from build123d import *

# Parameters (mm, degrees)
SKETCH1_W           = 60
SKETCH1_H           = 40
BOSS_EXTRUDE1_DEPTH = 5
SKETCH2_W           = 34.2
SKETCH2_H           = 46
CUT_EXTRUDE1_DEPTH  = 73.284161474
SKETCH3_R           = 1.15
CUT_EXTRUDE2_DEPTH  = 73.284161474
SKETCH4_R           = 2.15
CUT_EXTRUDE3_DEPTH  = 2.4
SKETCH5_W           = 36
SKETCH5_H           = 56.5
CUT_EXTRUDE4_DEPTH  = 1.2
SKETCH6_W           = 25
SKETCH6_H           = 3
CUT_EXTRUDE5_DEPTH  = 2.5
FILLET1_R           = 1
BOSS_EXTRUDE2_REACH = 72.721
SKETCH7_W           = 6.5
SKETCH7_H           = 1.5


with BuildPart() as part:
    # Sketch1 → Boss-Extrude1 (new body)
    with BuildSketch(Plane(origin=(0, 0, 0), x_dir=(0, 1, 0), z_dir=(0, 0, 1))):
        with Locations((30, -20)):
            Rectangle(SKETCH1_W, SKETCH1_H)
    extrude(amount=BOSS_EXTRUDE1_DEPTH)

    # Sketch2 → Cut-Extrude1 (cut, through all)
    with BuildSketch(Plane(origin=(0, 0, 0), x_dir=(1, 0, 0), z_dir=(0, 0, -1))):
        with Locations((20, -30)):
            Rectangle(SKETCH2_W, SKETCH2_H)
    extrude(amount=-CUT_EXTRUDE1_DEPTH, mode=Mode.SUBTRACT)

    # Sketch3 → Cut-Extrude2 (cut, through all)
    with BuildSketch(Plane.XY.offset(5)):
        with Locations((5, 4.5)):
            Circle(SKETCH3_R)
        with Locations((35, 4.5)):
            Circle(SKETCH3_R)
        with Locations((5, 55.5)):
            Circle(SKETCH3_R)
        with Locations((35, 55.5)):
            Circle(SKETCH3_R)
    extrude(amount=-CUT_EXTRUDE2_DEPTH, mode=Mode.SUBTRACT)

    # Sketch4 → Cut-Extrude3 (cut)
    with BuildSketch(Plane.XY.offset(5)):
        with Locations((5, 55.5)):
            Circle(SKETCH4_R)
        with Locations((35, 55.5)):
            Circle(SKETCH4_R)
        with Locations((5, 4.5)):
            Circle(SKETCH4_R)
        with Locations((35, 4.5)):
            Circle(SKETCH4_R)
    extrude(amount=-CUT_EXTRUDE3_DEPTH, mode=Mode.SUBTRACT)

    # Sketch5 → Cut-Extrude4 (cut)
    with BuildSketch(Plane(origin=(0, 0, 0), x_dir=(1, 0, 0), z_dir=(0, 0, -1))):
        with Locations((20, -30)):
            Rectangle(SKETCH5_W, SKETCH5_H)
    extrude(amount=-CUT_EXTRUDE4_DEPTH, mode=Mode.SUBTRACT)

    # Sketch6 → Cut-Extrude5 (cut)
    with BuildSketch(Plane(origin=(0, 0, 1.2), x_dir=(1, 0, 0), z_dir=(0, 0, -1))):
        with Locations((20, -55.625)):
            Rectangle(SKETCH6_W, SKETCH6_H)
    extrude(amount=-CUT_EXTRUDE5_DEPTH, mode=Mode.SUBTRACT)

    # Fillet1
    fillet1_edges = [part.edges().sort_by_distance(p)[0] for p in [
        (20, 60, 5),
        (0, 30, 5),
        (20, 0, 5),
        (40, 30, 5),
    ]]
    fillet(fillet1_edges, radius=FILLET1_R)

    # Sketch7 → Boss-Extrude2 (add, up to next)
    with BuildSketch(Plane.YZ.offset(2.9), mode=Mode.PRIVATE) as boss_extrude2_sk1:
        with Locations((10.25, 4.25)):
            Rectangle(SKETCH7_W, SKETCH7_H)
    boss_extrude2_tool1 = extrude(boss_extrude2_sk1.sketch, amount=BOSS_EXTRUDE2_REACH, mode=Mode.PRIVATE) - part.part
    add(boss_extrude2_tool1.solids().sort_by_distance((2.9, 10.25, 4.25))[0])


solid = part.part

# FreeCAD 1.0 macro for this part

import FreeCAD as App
import Part
import Sketcher


def edges_at(feature, points):
    """Names of the edges that pass closest to the given points."""
    edges = feature.Shape.Edges
    near = lambda p: min(range(len(edges)), key=lambda i: edges[i].distToShape(Part.Vertex(*p))[0])
    return sorted({f"Edge{near(p) + 1}" for p in points})

doc = App.newDocument("Part")
body = doc.addObject("PartDesign::Body", "Body")

sketch1 = doc.addObject("Sketcher::SketchObject", "Sketch")
body.addObject(sketch1)
sketch1.AttachmentSupport = (doc.XY_Plane, [""])
sketch1.MapMode = "FlatFace"
sketch1.addGeometry([
    Part.LineSegment(App.Vector(0, 0, 0), App.Vector(40, 0, 0)),
    Part.LineSegment(App.Vector(40, 0, 0), App.Vector(40, 60, 0)),
    Part.LineSegment(App.Vector(40, 60, 0), App.Vector(0, 60, 0)),
    Part.LineSegment(App.Vector(0, 60, 0), App.Vector(0, 0, 0)),
], False)
sketch1.addConstraint([
    Sketcher.Constraint("Coincident", 0, 2, 1, 1),
    Sketcher.Constraint("Coincident", 1, 2, 2, 1),
    Sketcher.Constraint("Coincident", 2, 2, 3, 1),
    Sketcher.Constraint("Coincident", 3, 2, 0, 1),
    Sketcher.Constraint("Horizontal", 0),
    Sketcher.Constraint("Vertical", 1),
    Sketcher.Constraint("Horizontal", 2),
    Sketcher.Constraint("Vertical", 3),
    Sketcher.Constraint("Coincident", 3, 2, -1, 1),
    Sketcher.Constraint("DistanceX", 0, 1, 0, 2, 40.0),
    Sketcher.Constraint("DistanceY", 1, 1, 1, 2, 60.0),
])
pad1 = doc.addObject("PartDesign::Pad", "Pad")
body.addObject(pad1)
pad1.Profile = sketch1
pad1.Length = 5

sketch2 = doc.addObject("Sketcher::SketchObject", "Sketch001")
body.addObject(sketch2)
sketch2.AttachmentSupport = (doc.XY_Plane, [""])
sketch2.MapMode = "FlatFace"
sketch2.addGeometry([
    Part.LineSegment(App.Vector(3, 7, 0), App.Vector(3, 53, 0)),
    Part.LineSegment(App.Vector(3, 53, 0), App.Vector(37, 53, 0)),
    Part.LineSegment(App.Vector(37, 53, 0), App.Vector(37, 7, 0)),
    Part.LineSegment(App.Vector(37, 7, 0), App.Vector(3, 7, 0)),
], False)
sketch2.addConstraint([
    Sketcher.Constraint("Coincident", 0, 2, 1, 1),
    Sketcher.Constraint("Coincident", 1, 2, 2, 1),
    Sketcher.Constraint("Coincident", 2, 2, 3, 1),
    Sketcher.Constraint("Coincident", 3, 2, 0, 1),
    Sketcher.Constraint("Vertical", 0),
    Sketcher.Constraint("Horizontal", 1),
    Sketcher.Constraint("Vertical", 2),
    Sketcher.Constraint("Horizontal", 3),
    Sketcher.Constraint("DistanceY", 0, 1, 0, 2, 46.0),
    Sketcher.Constraint("DistanceX", 1, 1, 1, 2, 34.2),
    Sketcher.Constraint("DistanceY", -1, 1, 0, 2, 53.0),
    Sketcher.Constraint("DistanceX", -1, 1, 0, 2, 2.9),
])
pocket1 = doc.addObject("PartDesign::Pocket", "Pocket")
body.addObject(pocket1)
pocket1.Profile = sketch2
pocket1.Type = "ThroughAll"
pocket1.Reversed = True

sketch3 = doc.addObject("Sketcher::SketchObject", "Sketch002")
body.addObject(sketch3)
sketch3.AttachmentSupport = (doc.XY_Plane, [""])
sketch3.MapMode = "FlatFace"
sketch3.AttachmentOffset = App.Placement(App.Vector(0, 0, 5), App.Rotation())
sketch3.addGeometry([
    Part.Circle(App.Vector(5, 4.5, 0), App.Vector(0, 0, 1), 1.1),
    Part.Circle(App.Vector(35, 4.5, 0), App.Vector(0, 0, 1), 1.1),
    Part.Circle(App.Vector(5, 55.5, 0), App.Vector(0, 0, 1), 1.1),
    Part.Circle(App.Vector(35, 55.5, 0), App.Vector(0, 0, 1), 1.1),
], False)
sketch3.addConstraint([
    Sketcher.Constraint("Equal", 0, 1),
    Sketcher.Constraint("Equal", 1, 2),
    Sketcher.Constraint("Equal", 2, 3),
    Sketcher.Constraint("Horizontal", 0, 3, 1, 3),
    Sketcher.Constraint("Horizontal", 2, 3, 3, 3),
    Sketcher.Constraint("Vertical", 0, 3, 2, 3),
    Sketcher.Constraint("Vertical", 1, 3, 3, 3),
    Sketcher.Constraint("Diameter", 0, 2.3),
    Sketcher.Constraint("DistanceX", -1, 1, 0, 3, 5.0),
    Sketcher.Constraint("DistanceX", -1, 1, 1, 3, 35.0),
    Sketcher.Constraint("DistanceY", 0, 3, 2, 3, 51.0),
    Sketcher.Constraint("DistanceY", -1, 1, 0, 3, 4.5),
])
pocket2 = doc.addObject("PartDesign::Pocket", "Pocket001")
body.addObject(pocket2)
pocket2.Profile = sketch3
pocket2.Type = "ThroughAll"

sketch4 = doc.addObject("Sketcher::SketchObject", "Sketch003")
body.addObject(sketch4)
sketch4.AttachmentSupport = (doc.XY_Plane, [""])
sketch4.MapMode = "FlatFace"
sketch4.AttachmentOffset = App.Placement(App.Vector(0, 0, 5), App.Rotation())
sketch4.addGeometry([
    Part.Circle(App.Vector(5, 55.5, 0), App.Vector(0, 0, 1), 2.1),
    Part.Circle(App.Vector(35, 55.5, 0), App.Vector(0, 0, 1), 2.1),
    Part.Circle(App.Vector(5, 4.5, 0), App.Vector(0, 0, 1), 2.1),
    Part.Circle(App.Vector(35, 4.5, 0), App.Vector(0, 0, 1), 2.1),
], False)
sketch4.addConstraint([
    Sketcher.Constraint("Equal", 0, 1),
    Sketcher.Constraint("Equal", 1, 2),
    Sketcher.Constraint("Equal", 2, 3),
    Sketcher.Constraint("Horizontal", 0, 3, 1, 3),
    Sketcher.Constraint("Horizontal", 2, 3, 3, 3),
    Sketcher.Constraint("Vertical", 0, 3, 2, 3),
    Sketcher.Constraint("Vertical", 1, 3, 3, 3),
    Sketcher.Constraint("Diameter", 0, 4.3),
    Sketcher.Constraint("DistanceX", -1, 1, 0, 3, 5.0),
    Sketcher.Constraint("DistanceX", -1, 1, 1, 3, 35.0),
    Sketcher.Constraint("DistanceY", 2, 3, 0, 3, 51.0),
    Sketcher.Constraint("DistanceY", -1, 1, 0, 3, 55.5),
])
pocket3 = doc.addObject("PartDesign::Pocket", "Pocket002")
body.addObject(pocket3)
pocket3.Profile = sketch4
pocket3.Length = 2.4

sketch5 = doc.addObject("Sketcher::SketchObject", "Sketch004")
body.addObject(sketch5)
sketch5.AttachmentSupport = (doc.XY_Plane, [""])
sketch5.MapMode = "FlatFace"
sketch5.addGeometry([
    Part.LineSegment(App.Vector(2, 2, 0), App.Vector(2, 58, 0)),
    Part.LineSegment(App.Vector(2, 58, 0), App.Vector(38, 58, 0)),
    Part.LineSegment(App.Vector(38, 58, 0), App.Vector(38, 2, 0)),
    Part.LineSegment(App.Vector(38, 2, 0), App.Vector(2, 2, 0)),
], False)
sketch5.addConstraint([
    Sketcher.Constraint("Coincident", 0, 2, 1, 1),
    Sketcher.Constraint("Coincident", 1, 2, 2, 1),
    Sketcher.Constraint("Coincident", 2, 2, 3, 1),
    Sketcher.Constraint("Coincident", 3, 2, 0, 1),
    Sketcher.Constraint("Vertical", 0),
    Sketcher.Constraint("Horizontal", 1),
    Sketcher.Constraint("Vertical", 2),
    Sketcher.Constraint("Horizontal", 3),
    Sketcher.Constraint("DistanceX", 1, 1, 1, 2, 36.0),
    Sketcher.Constraint("DistanceY", 0, 1, 0, 2, 56.5),
    Sketcher.Constraint("DistanceX", -1, 1, 0, 2, 2.0),
    Sketcher.Constraint("DistanceY", -1, 1, 0, 2, 58.25),
])
pocket4 = doc.addObject("PartDesign::Pocket", "Pocket003")
body.addObject(pocket4)
pocket4.Profile = sketch5
pocket4.Length = 1.2
pocket4.Reversed = True

sketch6 = doc.addObject("Sketcher::SketchObject", "Sketch005")
body.addObject(sketch6)
sketch6.AttachmentSupport = (doc.XY_Plane, [""])
sketch6.MapMode = "FlatFace"
sketch6.AttachmentOffset = App.Placement(App.Vector(0, 0, 1.2), App.Rotation())
sketch6.addGeometry([
    Part.LineSegment(App.Vector(7.5, 54.1, 0), App.Vector(7.5, 57.1, 0)),
    Part.LineSegment(App.Vector(7.5, 57.1, 0), App.Vector(32.5, 57.1, 0)),
    Part.LineSegment(App.Vector(32.5, 57.1, 0), App.Vector(32.5, 54.1, 0)),
    Part.LineSegment(App.Vector(32.5, 54.1, 0), App.Vector(7.5, 54.1, 0)),
], False)
sketch6.addConstraint([
    Sketcher.Constraint("Coincident", 0, 2, 1, 1),
    Sketcher.Constraint("Coincident", 1, 2, 2, 1),
    Sketcher.Constraint("Coincident", 2, 2, 3, 1),
    Sketcher.Constraint("Coincident", 3, 2, 0, 1),
    Sketcher.Constraint("Vertical", 0),
    Sketcher.Constraint("Horizontal", 1),
    Sketcher.Constraint("Vertical", 2),
    Sketcher.Constraint("Horizontal", 3),
    Sketcher.Constraint("DistanceX", 1, 1, 1, 2, 25.0),
    Sketcher.Constraint("DistanceY", 0, 1, 0, 2, 3.0),
    Sketcher.Constraint("DistanceX", -1, 1, 0, 2, 7.5),
    Sketcher.Constraint("DistanceY", -1, 1, 0, 2, 57.125),
])
pocket5 = doc.addObject("PartDesign::Pocket", "Pocket004")
body.addObject(pocket5)
pocket5.Profile = sketch6
pocket5.Length = 2.5
pocket5.Reversed = True
doc.recompute()

fillet = doc.addObject("PartDesign::Fillet", "Fillet")
body.addObject(fillet)
fillet.Base = (pocket5, edges_at(pocket5, [
    (20, 60, 5),
    (0, 30, 5),
    (20, 0, 5),
    (40, 30, 5),
]))
fillet.Radius = 1

sketch7 = doc.addObject("Sketcher::SketchObject", "Sketch006")
body.addObject(sketch7)
sketch7.AttachmentSupport = (doc.YZ_Plane, [""])
sketch7.MapMode = "FlatFace"
sketch7.AttachmentOffset = App.Placement(App.Vector(0, 0, 2.9), App.Rotation())
sketch7.addGeometry([
    Part.LineSegment(App.Vector(7, 5, 0), App.Vector(7, 3.5, 0)),
    Part.LineSegment(App.Vector(7, 3.5, 0), App.Vector(13.5, 3.5, 0)),
    Part.LineSegment(App.Vector(13.5, 3.5, 0), App.Vector(13.5, 5, 0)),
    Part.LineSegment(App.Vector(13.5, 5, 0), App.Vector(7, 5, 0)),
], False)
sketch7.addConstraint([
    Sketcher.Constraint("Coincident", 0, 2, 1, 1),
    Sketcher.Constraint("Coincident", 1, 2, 2, 1),
    Sketcher.Constraint("Coincident", 2, 2, 3, 1),
    Sketcher.Constraint("Coincident", 3, 2, 0, 1),
    Sketcher.Constraint("Vertical", 0),
    Sketcher.Constraint("Horizontal", 1),
    Sketcher.Constraint("Vertical", 2),
    Sketcher.Constraint("Horizontal", 3),
    Sketcher.Constraint("DistanceX", 1, 1, 1, 2, 6.5),
    Sketcher.Constraint("DistanceY", 0, 2, 0, 1, 1.5),
    Sketcher.Constraint("DistanceX", -1, 1, 0, 2, 7.0),
    Sketcher.Constraint("DistanceY", -1, 1, 2, 2, 5.0),
])
pad2 = doc.addObject("PartDesign::Pad", "Pad001")
body.addObject(pad2)
pad2.Profile = sketch7
pad2.Type = "UpToFirst"

doc.recompute()
